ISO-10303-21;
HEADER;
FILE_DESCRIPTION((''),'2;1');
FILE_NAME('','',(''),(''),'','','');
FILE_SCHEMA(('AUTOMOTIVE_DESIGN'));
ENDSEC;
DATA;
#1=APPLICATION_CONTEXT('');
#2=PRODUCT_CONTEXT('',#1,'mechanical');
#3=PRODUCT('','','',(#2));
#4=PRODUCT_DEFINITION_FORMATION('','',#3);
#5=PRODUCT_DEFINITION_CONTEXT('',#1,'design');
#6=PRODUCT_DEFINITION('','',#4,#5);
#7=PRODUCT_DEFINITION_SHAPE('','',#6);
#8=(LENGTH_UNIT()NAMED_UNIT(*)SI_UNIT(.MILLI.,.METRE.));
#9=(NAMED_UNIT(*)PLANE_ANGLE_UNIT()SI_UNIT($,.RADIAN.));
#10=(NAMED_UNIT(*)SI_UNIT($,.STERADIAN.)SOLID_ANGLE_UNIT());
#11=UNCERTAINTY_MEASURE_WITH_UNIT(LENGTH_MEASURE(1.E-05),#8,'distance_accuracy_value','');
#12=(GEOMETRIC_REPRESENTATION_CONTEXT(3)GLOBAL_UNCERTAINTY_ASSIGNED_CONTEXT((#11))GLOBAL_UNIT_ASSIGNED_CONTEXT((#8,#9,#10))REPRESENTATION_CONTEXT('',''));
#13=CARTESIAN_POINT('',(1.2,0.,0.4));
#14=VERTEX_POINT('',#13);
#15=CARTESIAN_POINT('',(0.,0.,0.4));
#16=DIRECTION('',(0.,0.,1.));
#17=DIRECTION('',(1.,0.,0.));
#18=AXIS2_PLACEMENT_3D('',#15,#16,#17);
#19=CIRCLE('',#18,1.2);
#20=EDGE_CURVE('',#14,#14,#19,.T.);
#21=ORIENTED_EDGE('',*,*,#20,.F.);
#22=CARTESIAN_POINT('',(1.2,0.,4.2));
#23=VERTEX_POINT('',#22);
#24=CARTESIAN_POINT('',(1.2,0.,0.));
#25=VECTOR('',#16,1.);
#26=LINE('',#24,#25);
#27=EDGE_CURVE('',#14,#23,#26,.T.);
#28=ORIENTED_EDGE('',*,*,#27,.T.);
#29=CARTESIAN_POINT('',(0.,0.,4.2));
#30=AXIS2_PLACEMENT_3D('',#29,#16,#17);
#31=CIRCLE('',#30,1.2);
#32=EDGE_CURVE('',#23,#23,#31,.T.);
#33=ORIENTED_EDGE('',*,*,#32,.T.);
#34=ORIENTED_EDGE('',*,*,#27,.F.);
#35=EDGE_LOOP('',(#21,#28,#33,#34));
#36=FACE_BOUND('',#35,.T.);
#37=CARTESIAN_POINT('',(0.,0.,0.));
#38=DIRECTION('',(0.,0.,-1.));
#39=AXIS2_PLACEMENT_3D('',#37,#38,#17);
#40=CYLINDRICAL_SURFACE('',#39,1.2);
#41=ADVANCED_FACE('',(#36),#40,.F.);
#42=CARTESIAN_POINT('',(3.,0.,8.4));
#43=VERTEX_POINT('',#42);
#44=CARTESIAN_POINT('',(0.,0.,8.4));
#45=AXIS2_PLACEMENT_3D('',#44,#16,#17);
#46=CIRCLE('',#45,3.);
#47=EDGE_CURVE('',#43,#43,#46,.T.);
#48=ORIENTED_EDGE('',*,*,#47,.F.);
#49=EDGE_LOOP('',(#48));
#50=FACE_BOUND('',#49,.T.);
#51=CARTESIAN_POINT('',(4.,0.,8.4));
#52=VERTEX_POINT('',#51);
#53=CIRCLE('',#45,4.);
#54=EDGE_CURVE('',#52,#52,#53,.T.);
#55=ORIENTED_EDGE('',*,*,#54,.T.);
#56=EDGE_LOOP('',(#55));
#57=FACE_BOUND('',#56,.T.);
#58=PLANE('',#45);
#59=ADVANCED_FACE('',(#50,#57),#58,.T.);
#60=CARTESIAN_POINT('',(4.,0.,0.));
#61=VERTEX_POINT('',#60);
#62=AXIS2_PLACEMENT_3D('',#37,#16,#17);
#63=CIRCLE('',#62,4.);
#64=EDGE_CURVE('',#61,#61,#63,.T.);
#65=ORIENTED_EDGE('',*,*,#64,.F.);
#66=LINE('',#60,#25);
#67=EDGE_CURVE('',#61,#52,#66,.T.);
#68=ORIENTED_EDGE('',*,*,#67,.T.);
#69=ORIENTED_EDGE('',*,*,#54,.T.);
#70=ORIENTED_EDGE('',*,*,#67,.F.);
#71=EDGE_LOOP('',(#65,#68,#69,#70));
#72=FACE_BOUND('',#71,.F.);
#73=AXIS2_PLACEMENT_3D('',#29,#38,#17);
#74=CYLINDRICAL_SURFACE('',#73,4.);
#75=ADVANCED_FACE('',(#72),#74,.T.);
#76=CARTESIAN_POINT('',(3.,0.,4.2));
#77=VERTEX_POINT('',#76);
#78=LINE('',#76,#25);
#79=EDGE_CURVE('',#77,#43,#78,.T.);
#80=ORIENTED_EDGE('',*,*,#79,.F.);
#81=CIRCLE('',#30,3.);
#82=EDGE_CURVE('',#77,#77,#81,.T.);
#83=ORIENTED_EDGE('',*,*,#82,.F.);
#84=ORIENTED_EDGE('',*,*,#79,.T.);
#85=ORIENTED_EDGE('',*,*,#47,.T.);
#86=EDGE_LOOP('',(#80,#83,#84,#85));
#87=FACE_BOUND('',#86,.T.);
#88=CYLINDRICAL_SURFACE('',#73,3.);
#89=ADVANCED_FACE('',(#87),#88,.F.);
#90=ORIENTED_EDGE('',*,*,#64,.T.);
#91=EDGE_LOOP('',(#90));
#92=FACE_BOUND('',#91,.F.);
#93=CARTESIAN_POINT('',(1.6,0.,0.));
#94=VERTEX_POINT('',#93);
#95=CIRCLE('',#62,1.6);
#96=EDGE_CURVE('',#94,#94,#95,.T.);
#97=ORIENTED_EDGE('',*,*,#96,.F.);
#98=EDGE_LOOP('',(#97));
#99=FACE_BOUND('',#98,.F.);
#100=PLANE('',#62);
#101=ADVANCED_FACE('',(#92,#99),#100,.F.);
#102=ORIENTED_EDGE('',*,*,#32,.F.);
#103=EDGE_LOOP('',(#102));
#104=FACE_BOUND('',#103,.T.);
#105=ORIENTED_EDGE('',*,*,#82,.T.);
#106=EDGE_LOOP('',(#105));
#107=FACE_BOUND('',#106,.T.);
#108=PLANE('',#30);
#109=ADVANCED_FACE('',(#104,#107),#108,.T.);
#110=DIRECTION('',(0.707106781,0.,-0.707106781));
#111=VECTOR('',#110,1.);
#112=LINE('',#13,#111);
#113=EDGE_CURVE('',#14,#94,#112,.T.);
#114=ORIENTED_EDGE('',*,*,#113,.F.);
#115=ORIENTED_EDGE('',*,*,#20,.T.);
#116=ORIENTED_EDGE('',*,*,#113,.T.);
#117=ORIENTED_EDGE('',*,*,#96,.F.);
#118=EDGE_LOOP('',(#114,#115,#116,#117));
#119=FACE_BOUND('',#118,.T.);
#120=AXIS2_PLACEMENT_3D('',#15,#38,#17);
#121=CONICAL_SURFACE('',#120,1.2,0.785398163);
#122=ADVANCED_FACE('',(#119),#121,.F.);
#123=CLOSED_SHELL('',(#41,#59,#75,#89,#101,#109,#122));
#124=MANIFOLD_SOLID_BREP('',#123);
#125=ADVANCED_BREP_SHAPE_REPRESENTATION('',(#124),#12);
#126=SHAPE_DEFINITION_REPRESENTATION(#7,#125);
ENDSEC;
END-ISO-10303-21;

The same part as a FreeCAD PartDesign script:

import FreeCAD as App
import Part
import Sketcher

V = App.Vector


def edges_at(feature, points):
    """Names of the edges that pass closest to the given points."""
    edges = feature.Shape.Edges
    near = lambda p: min(range(len(edges)), key=lambda i: edges[i].distToShape(Part.Vertex(*p))[0])
    return sorted({f"Edge{near(p) + 1}" for p in points})

doc = App.newDocument("Part")
body = doc.addObject("PartDesign::Body", "Body")

sketch1 = doc.addObject("Sketcher::SketchObject", "Sketch")
body.addObject(sketch1)
sketch1.AttachmentSupport = (doc.XY_Plane, [""])
sketch1.MapMode = "FlatFace"
sketch1.addGeometry(Part.Circle(V(0, 0, 0), V(0, 0, 1), 4), False)
sketch1.addGeometry(Part.Circle(V(0, 0, 0), V(0, 0, 1), 1.2), False)
sketch1.addConstraint(Sketcher.Constraint("Coincident", 0, 3, -1, 1))
sketch1.addConstraint(Sketcher.Constraint("Coincident", 1, 3, -1, 1))
sketch1.addConstraint(Sketcher.Constraint("Diameter", 0, 8.0))
sketch1.addConstraint(Sketcher.Constraint("Diameter", 1, 2.4))
pad1 = doc.addObject("PartDesign::Pad", "Pad")
body.addObject(pad1)
pad1.Profile = sketch1
pad1.Length = 4.2
doc.recompute()

chamfer = doc.addObject("PartDesign::Chamfer", "Chamfer")
body.addObject(chamfer)
chamfer.Base = (pad1, edges_at(pad1, [(-1.2, 0, 0)]))
chamfer.Size = 0.4

sketch2 = doc.addObject("Sketcher::SketchObject", "Sketch001")
body.addObject(sketch2)
sketch2.AttachmentSupport = (doc.XY_Plane, [""])
sketch2.MapMode = "FlatFace"
sketch2.AttachmentOffset = App.Placement(V(0, 0, 4.2), App.Rotation())
sketch2.addGeometry(Part.Circle(V(0, 0, 0), V(0, 0, 1), 4), False)
sketch2.addGeometry(Part.Circle(V(0, 0, 0), V(0, 0, 1), 3), False)
sketch2.addConstraint(Sketcher.Constraint("Coincident", 0, 3, -1, 1))
sketch2.addConstraint(Sketcher.Constraint("Coincident", 1, 3, -1, 1))
sketch2.addConstraint(Sketcher.Constraint("Diameter", 0, 8.0))
sketch2.addConstraint(Sketcher.Constraint("Diameter", 1, 6.0))
pad2 = doc.addObject("PartDesign::Pad", "Pad001")
body.addObject(pad2)
pad2.Profile = sketch2
pad2.Length = 4.2

doc.recompute()
